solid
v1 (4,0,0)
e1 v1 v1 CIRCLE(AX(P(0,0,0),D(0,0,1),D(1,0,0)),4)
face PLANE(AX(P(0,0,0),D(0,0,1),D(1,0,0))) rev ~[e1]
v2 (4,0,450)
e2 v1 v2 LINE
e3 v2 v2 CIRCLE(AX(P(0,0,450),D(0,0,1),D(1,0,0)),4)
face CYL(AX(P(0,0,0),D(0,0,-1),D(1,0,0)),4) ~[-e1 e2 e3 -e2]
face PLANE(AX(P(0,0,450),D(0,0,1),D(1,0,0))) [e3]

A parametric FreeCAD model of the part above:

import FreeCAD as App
import Part
import Sketcher
from FreeCAD import Vector

doc = App.newDocument("Part")
params = doc.addObject("Spreadsheet::Sheet", "Params")
for row, (alias, value) in enumerate([
    ("sketch1_diameter", "8 mm"),
    ("pad1_length", "450 mm"),
], start=1):
    params.set(f"A{row}", alias)
    params.set(f"B{row}", "=" + value)
    params.setAlias(f"B{row}", alias)

body = doc.addObject("PartDesign::Body", "Body")

# Sketch on XY plane
sketch1 = body.newObject("Sketcher::SketchObject", "Sketch")
sketch1.AttachmentSupport = (doc.getObject("XY_Plane"), [""])
sketch1.MapMode = "FlatFace"
sketch1.addGeometry(Part.Circle(Vector(0, 0, 0), Vector(0, 0, 1), 4), False)
sketch1.addConstraint([
    Sketcher.Constraint("Coincident", 0, 3, -1, 1),
    Sketcher.Constraint("Diameter", 0, 8.0),
])
sketch1.setExpression("Constraints[1]", "Params.sketch1_diameter")
pad1 = body.newObject("PartDesign::Pad", "Pad")
pad1.Profile = sketch1
pad1.setExpression("Length", "Params.pad1_length")

doc.recompute()
